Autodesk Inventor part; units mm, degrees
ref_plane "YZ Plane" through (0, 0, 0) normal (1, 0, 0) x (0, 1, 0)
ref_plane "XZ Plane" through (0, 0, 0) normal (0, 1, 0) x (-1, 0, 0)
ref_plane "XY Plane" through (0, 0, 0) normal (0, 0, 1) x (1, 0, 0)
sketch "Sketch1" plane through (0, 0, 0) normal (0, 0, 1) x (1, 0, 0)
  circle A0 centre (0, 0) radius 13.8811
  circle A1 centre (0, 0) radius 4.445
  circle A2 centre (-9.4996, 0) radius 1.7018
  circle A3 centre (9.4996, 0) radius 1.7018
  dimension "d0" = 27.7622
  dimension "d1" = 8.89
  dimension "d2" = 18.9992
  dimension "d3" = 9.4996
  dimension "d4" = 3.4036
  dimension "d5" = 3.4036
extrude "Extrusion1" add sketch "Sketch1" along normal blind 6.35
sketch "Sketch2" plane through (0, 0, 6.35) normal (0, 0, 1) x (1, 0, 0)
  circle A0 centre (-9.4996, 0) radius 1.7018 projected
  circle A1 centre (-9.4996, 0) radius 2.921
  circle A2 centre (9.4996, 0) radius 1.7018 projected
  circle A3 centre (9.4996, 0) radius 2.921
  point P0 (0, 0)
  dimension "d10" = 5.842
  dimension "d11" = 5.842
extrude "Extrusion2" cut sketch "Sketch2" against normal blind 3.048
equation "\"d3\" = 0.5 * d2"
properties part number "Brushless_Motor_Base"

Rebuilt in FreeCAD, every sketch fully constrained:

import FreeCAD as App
import Part
import Sketcher

V = App.Vector
Q = App.Units.Quantity

doc = App.newDocument("Part")
body = doc.addObject("PartDesign::Body", "Body")

sketch1 = body.newObject("Sketcher::SketchObject", "Sketch")
sketch1.AttachmentSupport = (doc.getObject("XY_Plane"), [""])
sketch1.MapMode = "FlatFace"
sketch1.addGeometry(Part.Circle(V(0, 0, 0), V(0, 0, 1), 13.9), False)
sketch1.addGeometry(Part.Circle(V(-9.5, 0, 0), V(0, 0, 1), 1.7), False)
sketch1.addGeometry(Part.Circle(V(0, 0, 0), V(0, 0, 1), 4.4), False)
sketch1.addGeometry(Part.Circle(V(9.5, 0, 0), V(0, 0, 1), 1.7), False)
sketch1.addConstraint(Sketcher.Constraint("Coincident", 0, 3, -1, 1))
sketch1.addConstraint(Sketcher.Constraint("Coincident", 2, 3, -1, 1))
sketch1.addConstraint(Sketcher.Constraint("Equal", 1, 3))
sketch1.addConstraint(Sketcher.Constraint("Symmetric", 1, 3, 3, 3, -1, 1))
sketch1.addConstraint(Sketcher.Constraint("PointOnObject", 1, 3, -1))
sketch1.addConstraint(Sketcher.Constraint("Diameter", 2, Q("0.35 in")))
sketch1.addConstraint(Sketcher.Constraint("Diameter", 0, Q("1.093 in")))
sketch1.addConstraint(Sketcher.Constraint("Diameter", 1, Q("0.134 in")))
sketch1.addConstraint(Sketcher.Constraint("DistanceX", 1, 3, -1, 1, Q("0.374 in")))
pad1 = body.newObject("PartDesign::Pad", "Pad")
pad1.Profile = sketch1
pad1.Length = Q("0.25 in")

sketch2 = body.newObject("Sketcher::SketchObject", "Sketch001")
sketch2.AttachmentSupport = (doc.getObject("XY_Plane"), [""])
sketch2.MapMode = "FlatFace"
sketch2.AttachmentOffset = App.Placement(V(0, 0, 0.25 * 25.4), App.Rotation())
sketch2.addGeometry(Part.Circle(V(-9.5, 0, 0), V(0, 0, 1), 2.9), False)
sketch2.addGeometry(Part.Circle(V(-9.5, 0, 0), V(0, 0, 1), 1.7), False)
sketch2.addGeometry(Part.Circle(V(9.5, 0, 0), V(0, 0, 1), 2.9), False)
sketch2.addGeometry(Part.Circle(V(9.5, 0, 0), V(0, 0, 1), 1.7), False)
sketch2.addConstraint(Sketcher.Constraint("Coincident", 1, 3, 0, 3))
sketch2.addConstraint(Sketcher.Constraint("Coincident", 3, 3, 2, 3))
sketch2.addConstraint(Sketcher.Constraint("Equal", 0, 2))
sketch2.addConstraint(Sketcher.Constraint("Equal", 1, 3))
sketch2.addConstraint(Sketcher.Constraint("Symmetric", 0, 3, 2, 3, -1, 1))
sketch2.addConstraint(Sketcher.Constraint("PointOnObject", 0, 3, -1))
sketch2.addConstraint(Sketcher.Constraint("Diameter", 0, Q("0.23 in")))
sketch2.addConstraint(Sketcher.Constraint("Diameter", 1, Q("0.134 in")))
sketch2.addConstraint(Sketcher.Constraint("DistanceX", 0, 3, -1, 1, Q("0.374 in")))
pocket1 = body.newObject("PartDesign::Pocket", "Pocket")
pocket1.Profile = sketch2
pocket1.Length = Q("0.12 in")

doc.recompute()
